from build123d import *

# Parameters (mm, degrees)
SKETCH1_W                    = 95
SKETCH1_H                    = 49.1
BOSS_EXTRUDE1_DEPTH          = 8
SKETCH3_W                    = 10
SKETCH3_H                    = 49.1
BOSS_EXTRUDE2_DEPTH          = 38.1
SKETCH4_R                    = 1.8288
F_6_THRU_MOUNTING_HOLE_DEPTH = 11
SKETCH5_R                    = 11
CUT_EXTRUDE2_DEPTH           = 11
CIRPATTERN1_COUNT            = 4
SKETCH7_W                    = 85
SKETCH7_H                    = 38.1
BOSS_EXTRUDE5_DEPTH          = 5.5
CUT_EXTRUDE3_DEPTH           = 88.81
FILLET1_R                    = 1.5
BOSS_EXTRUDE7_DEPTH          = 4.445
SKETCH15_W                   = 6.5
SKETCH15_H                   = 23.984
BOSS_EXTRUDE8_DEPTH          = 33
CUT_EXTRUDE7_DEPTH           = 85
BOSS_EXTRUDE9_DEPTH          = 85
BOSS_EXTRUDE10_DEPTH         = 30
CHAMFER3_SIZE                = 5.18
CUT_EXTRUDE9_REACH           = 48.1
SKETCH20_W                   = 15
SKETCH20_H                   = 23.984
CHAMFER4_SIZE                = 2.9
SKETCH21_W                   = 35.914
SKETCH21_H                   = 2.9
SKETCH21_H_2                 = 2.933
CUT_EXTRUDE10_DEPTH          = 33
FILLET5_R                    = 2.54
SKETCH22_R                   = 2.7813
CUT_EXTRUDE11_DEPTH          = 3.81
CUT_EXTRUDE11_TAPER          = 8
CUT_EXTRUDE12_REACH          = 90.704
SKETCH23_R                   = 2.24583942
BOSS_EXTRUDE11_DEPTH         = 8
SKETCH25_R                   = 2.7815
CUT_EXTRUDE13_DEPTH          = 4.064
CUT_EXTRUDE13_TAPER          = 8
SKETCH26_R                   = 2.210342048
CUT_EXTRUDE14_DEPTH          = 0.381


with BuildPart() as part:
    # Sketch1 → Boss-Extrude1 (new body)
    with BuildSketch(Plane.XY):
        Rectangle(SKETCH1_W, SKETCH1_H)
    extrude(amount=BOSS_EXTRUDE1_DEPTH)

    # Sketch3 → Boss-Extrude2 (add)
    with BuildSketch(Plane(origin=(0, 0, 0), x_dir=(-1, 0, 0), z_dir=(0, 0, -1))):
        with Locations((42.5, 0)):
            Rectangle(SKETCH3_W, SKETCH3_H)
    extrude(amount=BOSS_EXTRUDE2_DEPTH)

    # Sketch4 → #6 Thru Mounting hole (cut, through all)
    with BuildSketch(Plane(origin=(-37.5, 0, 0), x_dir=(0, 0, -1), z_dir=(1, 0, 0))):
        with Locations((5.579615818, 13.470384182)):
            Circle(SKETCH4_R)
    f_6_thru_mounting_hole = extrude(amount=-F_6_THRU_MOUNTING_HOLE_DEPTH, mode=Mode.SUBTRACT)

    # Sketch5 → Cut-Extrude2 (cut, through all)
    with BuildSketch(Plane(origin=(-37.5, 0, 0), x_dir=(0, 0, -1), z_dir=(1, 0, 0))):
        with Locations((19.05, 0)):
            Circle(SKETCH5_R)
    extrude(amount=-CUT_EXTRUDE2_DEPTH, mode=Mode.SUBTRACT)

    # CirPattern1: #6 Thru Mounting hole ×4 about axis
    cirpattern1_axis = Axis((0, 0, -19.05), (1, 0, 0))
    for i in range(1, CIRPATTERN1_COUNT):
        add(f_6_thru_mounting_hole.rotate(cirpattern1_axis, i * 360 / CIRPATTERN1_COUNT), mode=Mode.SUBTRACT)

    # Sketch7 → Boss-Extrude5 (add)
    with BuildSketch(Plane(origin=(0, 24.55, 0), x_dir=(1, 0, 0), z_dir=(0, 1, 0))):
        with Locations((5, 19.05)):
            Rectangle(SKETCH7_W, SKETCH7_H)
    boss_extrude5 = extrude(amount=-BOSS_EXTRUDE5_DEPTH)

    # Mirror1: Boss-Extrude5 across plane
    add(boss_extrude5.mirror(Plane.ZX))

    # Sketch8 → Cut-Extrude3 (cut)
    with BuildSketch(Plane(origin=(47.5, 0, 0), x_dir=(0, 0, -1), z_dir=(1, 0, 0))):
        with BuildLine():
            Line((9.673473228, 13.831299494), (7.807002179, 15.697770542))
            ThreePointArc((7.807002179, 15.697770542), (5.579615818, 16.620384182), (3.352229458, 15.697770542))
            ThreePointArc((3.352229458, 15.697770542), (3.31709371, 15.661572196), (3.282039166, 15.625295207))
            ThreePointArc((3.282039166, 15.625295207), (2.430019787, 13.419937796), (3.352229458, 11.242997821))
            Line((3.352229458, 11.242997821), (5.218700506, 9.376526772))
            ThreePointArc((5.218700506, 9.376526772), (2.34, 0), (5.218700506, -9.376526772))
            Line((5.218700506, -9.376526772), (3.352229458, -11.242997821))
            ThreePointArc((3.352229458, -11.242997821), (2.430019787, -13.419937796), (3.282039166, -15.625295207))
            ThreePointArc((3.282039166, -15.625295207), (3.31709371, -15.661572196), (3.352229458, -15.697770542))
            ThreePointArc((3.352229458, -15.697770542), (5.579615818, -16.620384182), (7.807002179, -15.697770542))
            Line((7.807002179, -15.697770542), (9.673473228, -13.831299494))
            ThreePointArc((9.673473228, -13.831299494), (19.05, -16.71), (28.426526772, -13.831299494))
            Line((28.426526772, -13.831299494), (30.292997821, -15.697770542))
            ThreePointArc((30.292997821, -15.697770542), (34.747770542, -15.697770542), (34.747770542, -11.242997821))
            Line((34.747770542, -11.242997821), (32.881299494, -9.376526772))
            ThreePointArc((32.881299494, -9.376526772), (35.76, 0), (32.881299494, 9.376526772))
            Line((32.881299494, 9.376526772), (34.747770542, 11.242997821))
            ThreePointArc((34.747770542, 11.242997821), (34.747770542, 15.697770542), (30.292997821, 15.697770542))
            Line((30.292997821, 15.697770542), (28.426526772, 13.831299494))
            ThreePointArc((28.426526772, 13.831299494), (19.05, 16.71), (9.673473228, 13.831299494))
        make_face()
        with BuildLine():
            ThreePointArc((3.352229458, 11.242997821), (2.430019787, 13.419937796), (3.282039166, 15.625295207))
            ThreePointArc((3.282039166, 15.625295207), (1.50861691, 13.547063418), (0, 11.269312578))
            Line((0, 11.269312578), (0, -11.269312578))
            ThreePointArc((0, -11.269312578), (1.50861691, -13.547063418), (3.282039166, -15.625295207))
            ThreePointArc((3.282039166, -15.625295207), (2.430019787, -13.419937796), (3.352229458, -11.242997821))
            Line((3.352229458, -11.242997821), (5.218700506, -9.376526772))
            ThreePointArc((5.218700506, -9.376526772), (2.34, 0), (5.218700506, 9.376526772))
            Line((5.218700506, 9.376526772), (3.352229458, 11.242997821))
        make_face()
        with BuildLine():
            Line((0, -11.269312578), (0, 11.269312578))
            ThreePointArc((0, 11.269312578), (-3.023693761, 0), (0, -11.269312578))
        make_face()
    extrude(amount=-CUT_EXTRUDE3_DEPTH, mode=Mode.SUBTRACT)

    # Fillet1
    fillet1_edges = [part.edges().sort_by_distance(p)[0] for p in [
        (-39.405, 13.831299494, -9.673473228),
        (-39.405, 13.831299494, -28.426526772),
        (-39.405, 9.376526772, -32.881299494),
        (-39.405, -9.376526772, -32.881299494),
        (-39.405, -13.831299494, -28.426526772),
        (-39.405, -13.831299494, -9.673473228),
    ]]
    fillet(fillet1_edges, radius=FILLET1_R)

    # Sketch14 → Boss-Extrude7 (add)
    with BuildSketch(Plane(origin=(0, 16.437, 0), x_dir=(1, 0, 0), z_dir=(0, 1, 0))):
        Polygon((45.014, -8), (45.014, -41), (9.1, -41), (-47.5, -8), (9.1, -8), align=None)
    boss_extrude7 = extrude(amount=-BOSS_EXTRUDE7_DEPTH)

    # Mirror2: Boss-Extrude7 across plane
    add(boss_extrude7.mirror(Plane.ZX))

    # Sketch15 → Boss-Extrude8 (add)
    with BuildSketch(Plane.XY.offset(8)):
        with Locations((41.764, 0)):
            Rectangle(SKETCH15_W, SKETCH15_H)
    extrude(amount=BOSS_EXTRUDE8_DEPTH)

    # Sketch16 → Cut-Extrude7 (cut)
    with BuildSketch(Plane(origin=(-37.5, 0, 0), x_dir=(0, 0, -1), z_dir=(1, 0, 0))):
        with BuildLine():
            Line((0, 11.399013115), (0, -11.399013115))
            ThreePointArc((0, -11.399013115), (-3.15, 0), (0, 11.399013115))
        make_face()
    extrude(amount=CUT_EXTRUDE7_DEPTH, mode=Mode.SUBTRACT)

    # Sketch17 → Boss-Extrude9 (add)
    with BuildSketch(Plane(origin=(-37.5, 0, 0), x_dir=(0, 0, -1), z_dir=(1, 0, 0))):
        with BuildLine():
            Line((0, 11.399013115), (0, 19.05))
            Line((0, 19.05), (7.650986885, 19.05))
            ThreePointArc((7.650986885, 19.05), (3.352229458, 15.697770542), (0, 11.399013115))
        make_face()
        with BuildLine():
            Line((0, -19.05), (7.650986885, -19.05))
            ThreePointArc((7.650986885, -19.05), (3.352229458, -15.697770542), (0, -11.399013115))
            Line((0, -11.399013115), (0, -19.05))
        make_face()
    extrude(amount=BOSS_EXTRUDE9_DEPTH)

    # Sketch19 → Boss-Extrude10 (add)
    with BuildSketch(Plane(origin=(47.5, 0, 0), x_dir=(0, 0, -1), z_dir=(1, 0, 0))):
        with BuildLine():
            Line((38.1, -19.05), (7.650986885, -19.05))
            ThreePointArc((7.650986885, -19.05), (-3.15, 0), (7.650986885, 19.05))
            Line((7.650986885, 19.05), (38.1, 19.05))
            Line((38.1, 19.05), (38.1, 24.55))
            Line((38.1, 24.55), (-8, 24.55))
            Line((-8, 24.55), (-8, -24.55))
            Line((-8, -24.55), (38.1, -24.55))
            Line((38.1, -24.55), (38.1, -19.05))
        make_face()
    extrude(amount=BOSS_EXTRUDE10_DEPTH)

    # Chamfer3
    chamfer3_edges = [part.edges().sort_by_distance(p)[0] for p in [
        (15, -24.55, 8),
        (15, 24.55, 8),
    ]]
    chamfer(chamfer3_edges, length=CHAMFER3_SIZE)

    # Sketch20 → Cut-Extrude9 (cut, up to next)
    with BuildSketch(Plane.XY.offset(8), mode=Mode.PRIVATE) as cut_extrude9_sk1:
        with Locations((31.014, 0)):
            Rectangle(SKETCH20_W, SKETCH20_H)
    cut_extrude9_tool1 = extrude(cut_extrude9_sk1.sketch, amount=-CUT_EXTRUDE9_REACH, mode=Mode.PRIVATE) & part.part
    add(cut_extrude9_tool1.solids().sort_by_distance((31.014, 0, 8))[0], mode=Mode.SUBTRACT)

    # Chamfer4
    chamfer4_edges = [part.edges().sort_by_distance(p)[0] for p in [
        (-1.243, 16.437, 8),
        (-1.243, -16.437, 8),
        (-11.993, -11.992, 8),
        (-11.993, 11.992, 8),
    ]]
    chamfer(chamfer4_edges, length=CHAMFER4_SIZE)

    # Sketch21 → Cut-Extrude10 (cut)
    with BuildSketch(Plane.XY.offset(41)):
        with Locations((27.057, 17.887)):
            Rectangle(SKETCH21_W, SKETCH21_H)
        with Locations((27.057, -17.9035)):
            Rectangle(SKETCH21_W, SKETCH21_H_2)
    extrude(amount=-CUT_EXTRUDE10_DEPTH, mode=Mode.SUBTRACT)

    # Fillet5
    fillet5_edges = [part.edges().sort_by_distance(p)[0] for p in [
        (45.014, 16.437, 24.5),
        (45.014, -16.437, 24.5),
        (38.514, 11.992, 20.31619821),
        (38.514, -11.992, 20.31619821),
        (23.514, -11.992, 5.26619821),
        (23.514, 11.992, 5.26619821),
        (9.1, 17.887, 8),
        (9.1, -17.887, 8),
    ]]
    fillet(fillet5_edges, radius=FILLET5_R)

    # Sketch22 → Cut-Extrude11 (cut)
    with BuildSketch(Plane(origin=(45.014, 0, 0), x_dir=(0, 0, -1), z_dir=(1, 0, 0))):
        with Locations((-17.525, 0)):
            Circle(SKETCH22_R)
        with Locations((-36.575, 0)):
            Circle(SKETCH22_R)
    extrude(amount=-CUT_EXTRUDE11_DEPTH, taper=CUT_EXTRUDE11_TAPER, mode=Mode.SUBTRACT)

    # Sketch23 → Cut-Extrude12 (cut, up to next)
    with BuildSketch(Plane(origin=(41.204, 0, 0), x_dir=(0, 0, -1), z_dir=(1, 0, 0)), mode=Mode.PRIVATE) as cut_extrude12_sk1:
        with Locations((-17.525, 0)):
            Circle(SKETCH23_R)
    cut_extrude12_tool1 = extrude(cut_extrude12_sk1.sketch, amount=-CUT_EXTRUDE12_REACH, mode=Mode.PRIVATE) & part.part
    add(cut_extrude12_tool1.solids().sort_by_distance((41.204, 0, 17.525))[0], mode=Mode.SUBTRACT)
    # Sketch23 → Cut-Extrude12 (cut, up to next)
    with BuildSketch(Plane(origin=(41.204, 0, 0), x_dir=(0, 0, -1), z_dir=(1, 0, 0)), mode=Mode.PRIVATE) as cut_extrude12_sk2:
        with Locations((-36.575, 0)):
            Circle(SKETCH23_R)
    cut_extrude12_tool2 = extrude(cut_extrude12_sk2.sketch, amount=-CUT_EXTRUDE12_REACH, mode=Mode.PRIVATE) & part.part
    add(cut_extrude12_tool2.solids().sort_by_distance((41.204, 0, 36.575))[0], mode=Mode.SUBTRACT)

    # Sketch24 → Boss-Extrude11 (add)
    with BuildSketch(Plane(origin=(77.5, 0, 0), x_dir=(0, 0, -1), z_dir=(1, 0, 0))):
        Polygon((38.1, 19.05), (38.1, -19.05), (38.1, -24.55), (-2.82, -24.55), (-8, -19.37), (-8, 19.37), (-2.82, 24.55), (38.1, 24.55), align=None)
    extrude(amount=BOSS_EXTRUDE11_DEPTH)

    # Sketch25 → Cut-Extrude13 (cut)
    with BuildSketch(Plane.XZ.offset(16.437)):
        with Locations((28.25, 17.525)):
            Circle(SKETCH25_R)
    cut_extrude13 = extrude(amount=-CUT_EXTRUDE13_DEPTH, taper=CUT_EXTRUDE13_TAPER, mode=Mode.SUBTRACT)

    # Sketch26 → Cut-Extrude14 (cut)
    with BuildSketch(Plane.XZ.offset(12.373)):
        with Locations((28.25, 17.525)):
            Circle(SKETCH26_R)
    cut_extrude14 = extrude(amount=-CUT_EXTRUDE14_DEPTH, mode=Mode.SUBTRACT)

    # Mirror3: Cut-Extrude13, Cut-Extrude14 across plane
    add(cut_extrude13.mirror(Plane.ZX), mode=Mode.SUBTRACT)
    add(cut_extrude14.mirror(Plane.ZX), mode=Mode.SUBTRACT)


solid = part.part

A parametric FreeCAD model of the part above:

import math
import FreeCAD as App
import Part
import Sketcher


def edges_at(feature, points):
    """Names of the edges that pass closest to the given points."""
    edges = feature.Shape.Edges
    near = lambda p: min(range(len(edges)), key=lambda i: edges[i].distToShape(Part.Vertex(*p))[0])
    return sorted({f"Edge{near(p) + 1}" for p in points})


def add_polygon(sketch, points):
    """Adds a closed chain of lines whose ends are joined by coincident constraints."""
    first, n = sketch.GeometryCount, len(points)
    for a, b in zip(points, points[1:] + points[:1]):
        sketch.addGeometry(Part.LineSegment(App.Vector(*a, 0), App.Vector(*b, 0)), False)
    for i in range(n):
        sketch.addConstraint(Sketcher.Constraint("Coincident", first + i, 2, first + (i + 1) % n, 1))

doc = App.newDocument("Part")
body = doc.addObject("PartDesign::Body", "Body")

# Sketch on XY plane
sketch1 = body.newObject("Sketcher::SketchObject", "Sketch")
sketch1.AttachmentSupport = (doc.getObject("XY_Plane"), [""])
sketch1.MapMode = "FlatFace"
add_polygon(sketch1, [(-48, 25), (-48, -25), (48, -25), (48, 25)])  # lines 0-3
sketch1.addConstraint(Sketcher.Constraint("Vertical", 0))
sketch1.addConstraint(Sketcher.Constraint("Horizontal", 1))
sketch1.addConstraint(Sketcher.Constraint("Vertical", 2))
sketch1.addConstraint(Sketcher.Constraint("Horizontal", 3))
sketch1.addConstraint(Sketcher.Constraint("Symmetric", 0, 2, 2, 2, -1, 1))
sketch1.addConstraint(Sketcher.Constraint("DistanceX", 1, 1, 1, 2, 95.0))
sketch1.addConstraint(Sketcher.Constraint("DistanceY", 0, 2, 0, 1, 49.1))
pad1 = body.newObject("PartDesign::Pad", "Pad")
pad1.Profile = sketch1
pad1.Length = 8

# Sketch on XY plane
sketch2 = body.newObject("Sketcher::SketchObject", "Sketch001")
sketch2.AttachmentSupport = (doc.getObject("XY_Plane"), [""])
sketch2.MapMode = "FlatFace"
add_polygon(sketch2, [(-38, 25), (-38, -25), (-48, -25), (-48, 25)])  # lines 0-3
sketch2.addConstraint(Sketcher.Constraint("Vertical", 0))
sketch2.addConstraint(Sketcher.Constraint("Horizontal", 1))
sketch2.addConstraint(Sketcher.Constraint("Vertical", 2))
sketch2.addConstraint(Sketcher.Constraint("Horizontal", 3))
sketch2.addConstraint(Sketcher.Constraint("DistanceX", 1, 2, 1, 1, 10.0))
sketch2.addConstraint(Sketcher.Constraint("DistanceY", 0, 2, 0, 1, 49.1))
sketch2.addConstraint(Sketcher.Constraint("DistanceX", 0, 2, -1, 1, 37.5))
sketch2.addConstraint(Sketcher.Constraint("DistanceY", 0, 2, -1, 1, 24.55))
pad2 = body.newObject("PartDesign::Pad", "Pad001")
pad2.Profile = sketch2
pad2.Length = 38.1
pad2.Reversed = True

# Sketch on YZ plane
sketch3 = body.newObject("Sketcher::SketchObject", "Sketch002")
sketch3.AttachmentSupport = (doc.getObject("YZ_Plane"), [""])
sketch3.MapMode = "FlatFace"
sketch3.AttachmentOffset = App.Placement(App.Vector(0, 0, -37.5), App.Rotation())
sketch3.addGeometry(Part.Circle(App.Vector(13.5, -5.6, 0), App.Vector(0, 0, 1), 1.8), False)
sketch3.addConstraint(Sketcher.Constraint("Diameter", 0, 3.6576))
sketch3.addConstraint(Sketcher.Constraint("DistanceX", -1, 1, 0, 3, 13.470384))
sketch3.addConstraint(Sketcher.Constraint("DistanceY", 0, 3, -1, 1, 5.579616))
pocket1 = body.newObject("PartDesign::Pocket", "Pocket")
pocket1.Profile = sketch3
pocket1.Type = "ThroughAll"

# Sketch on YZ plane
sketch4 = body.newObject("Sketcher::SketchObject", "Sketch003")
sketch4.AttachmentSupport = (doc.getObject("YZ_Plane"), [""])
sketch4.MapMode = "FlatFace"
sketch4.AttachmentOffset = App.Placement(App.Vector(0, 0, -37.5), App.Rotation())
sketch4.addGeometry(Part.Circle(App.Vector(0, -19, 0), App.Vector(0, 0, 1), 11), False)
sketch4.addConstraint(Sketcher.Constraint("PointOnObject", 0, 3, -2))
sketch4.addConstraint(Sketcher.Constraint("Diameter", 0, 22.0))
sketch4.addConstraint(Sketcher.Constraint("DistanceY", 0, 3, -1, 1, 19.05))
pocket2 = body.newObject("PartDesign::Pocket", "Pocket001")
pocket2.Profile = sketch4
pocket2.Type = "ThroughAll"
doc.recompute()

datumline = body.newObject("PartDesign::Line", "DatumLine")
datumline.Placement = App.Placement(App.Vector(0, 0, -19.05), App.Rotation(App.Vector(0, 0, 1), App.Vector(1, 0, 0)))
polarpattern = body.newObject("PartDesign::PolarPattern", "PolarPattern")
polarpattern.Originals = [pocket1]
polarpattern.Axis = (datumline, [""])
polarpattern.Angle = 360
polarpattern.Occurrences = 4
body.Tip = polarpattern

# Sketch on XZ plane
sketch5 = body.newObject("Sketcher::SketchObject", "Sketch004")
sketch5.AttachmentSupport = (doc.getObject("XZ_Plane"), [""])
sketch5.MapMode = "FlatFace"
sketch5.AttachmentOffset = App.Placement(App.Vector(0, 0, -24.55), App.Rotation())
add_polygon(sketch5, [(-38, -38), (-38, 0), (48, 0), (48, -38)])  # lines 0-3
sketch5.addConstraint(Sketcher.Constraint("Vertical", 0))
sketch5.addConstraint(Sketcher.Constraint("Horizontal", 1))
sketch5.addConstraint(Sketcher.Constraint("Vertical", 2))
sketch5.addConstraint(Sketcher.Constraint("Horizontal", 3))
sketch5.addConstraint(Sketcher.Constraint("PointOnObject", 0, 2, -1))
sketch5.addConstraint(Sketcher.Constraint("DistanceX", 1, 1, 1, 2, 85.0))
sketch5.addConstraint(Sketcher.Constraint("DistanceY", 0, 1, 0, 2, 38.1))
sketch5.addConstraint(Sketcher.Constraint("DistanceX", 0, 2, -1, 1, 37.5))
pad3 = body.newObject("PartDesign::Pad", "Pad002")
pad3.Profile = sketch5
pad3.Length = 5.5
doc.recompute()

mirrored = body.newObject("PartDesign::Mirrored", "Mirrored")
mirrored.Originals = [pad3]
mirrored.MirrorPlane = (doc.getObject("XZ_Plane"), [""])
body.Tip = mirrored

# Sketch on YZ plane
sketch6 = body.newObject("Sketcher::SketchObject", "Sketch005")
sketch6.AttachmentSupport = (doc.getObject("YZ_Plane"), [""])
sketch6.MapMode = "FlatFace"
sketch6.AttachmentOffset = App.Placement(App.Vector(0, 0, 47.5), App.Rotation())
sketch6.addGeometry(Part.LineSegment(App.Vector(13.83, -9.67, 0), App.Vector(15.7, -7.81, 0)), False)
sketch6.addGeometry(Part.ArcOfCircle(Part.Circle(App.Vector(13.47, -5.58, 0), App.Vector(0, 0, 1), 3.15), math.radians(-45), math.radians(45)), False)
sketch6.addGeometry(Part.ArcOfCircle(Part.Circle(App.Vector(0, -19.49, 0), App.Vector(0, 0, 1), 22.51), math.radians(45.79), math.radians(46.05)), False)
sketch6.addGeometry(Part.ArcOfCircle(Part.Circle(App.Vector(0, -19.49, 0), App.Vector(0, 0, 1), 22.51), math.radians(46.05), math.radians(59.96)), False)
sketch6.addGeometry(Part.ArcOfCircle(Part.Circle(App.Vector(0, -19.49, 0), App.Vector(0, 0, 1), 22.51), math.radians(60), math.radians(120)), False)
sketch6.addGeometry(Part.ArcOfCircle(Part.Circle(App.Vector(0, -19.49, 0), App.Vector(0, 0, 1), 22.51), math.radians(120.04), math.radians(133.95)), False)
sketch6.addGeometry(Part.ArcOfCircle(Part.Circle(App.Vector(0, -19.49, 0), App.Vector(0, 0, 1), 22.51), math.radians(133.95), math.radians(134.21)), False)
sketch6.addGeometry(Part.ArcOfCircle(Part.Circle(App.Vector(-13.47, -5.58, 0), App.Vector(0, 0, 1), 3.15), math.radians(135), math.radians(225)), False)
sketch6.addGeometry(Part.LineSegment(App.Vector(-15.7, -7.81, 0), App.Vector(-13.83, -9.67, 0)), False)
sketch6.addGeometry(Part.ArcOfCircle(Part.Circle(App.Vector(0, -19.05, 0), App.Vector(0, 0, 1), 16.71), math.radians(146), math.radians(214)), False)
sketch6.addGeometry(Part.LineSegment(App.Vector(-13.83, -28.43, 0), App.Vector(-15.7, -30.29, 0)), False)
sketch6.addGeometry(Part.ArcOfCircle(Part.Circle(App.Vector(-13.47, -32.52, 0), App.Vector(0, 0, 1), 3.15), math.radians(135), math.radians(315)), False)
sketch6.addGeometry(Part.LineSegment(App.Vector(-11.24, -34.75, 0), App.Vector(-9.38, -32.88, 0)), False)
sketch6.addGeometry(Part.ArcOfCircle(Part.Circle(App.Vector(0, -19.05, 0), App.Vector(0, 0, 1), 16.71), math.radians(-124), math.radians(-56)), False)
sketch6.addGeometry(Part.LineSegment(App.Vector(9.38, -32.88, 0), App.Vector(11.24, -34.75, 0)), False)
sketch6.addGeometry(Part.ArcOfCircle(Part.Circle(App.Vector(13.47, -32.52, 0), App.Vector(0, 0, 1), 3.15), math.radians(-135), math.radians(45)), False)
sketch6.addGeometry(Part.LineSegment(App.Vector(15.7, -30.29, 0), App.Vector(13.83, -28.43, 0)), False)
sketch6.addGeometry(Part.ArcOfCircle(Part.Circle(App.Vector(0, -19.05, 0), App.Vector(0, 0, 1), 16.71), math.radians(-34), math.radians(34)), False)
sketch6.addConstraint(Sketcher.Constraint("Tangent", 0, 2, 1, 1))
sketch6.addConstraint(Sketcher.Constraint("Coincident", 1, 2, 2, 1))
sketch6.addConstraint(Sketcher.Constraint("Tangent", 2, 2, 3, 1))
sketch6.addConstraint(Sketcher.Constraint("Tangent", 3, 2, 4, 1))
sketch6.addConstraint(Sketcher.Constraint("Tangent", 4, 2, 5, 1))
sketch6.addConstraint(Sketcher.Constraint("Tangent", 5, 2, 6, 1))
sketch6.addConstraint(Sketcher.Constraint("Coincident", 6, 2, 7, 1))
sketch6.addConstraint(Sketcher.Constraint("Tangent", 7, 2, 8, 1))
sketch6.addConstraint(Sketcher.Constraint("Coincident", 8, 2, 9, 1))
sketch6.addConstraint(Sketcher.Constraint("Coincident", 9, 2, 10, 1))
sketch6.addConstraint(Sketcher.Constraint("Tangent", 10, 2, 11, 1))
sketch6.addConstraint(Sketcher.Constraint("Tangent", 11, 2, 12, 1))
sketch6.addConstraint(Sketcher.Constraint("Coincident", 12, 2, 13, 1))
sketch6.addConstraint(Sketcher.Constraint("Coincident", 13, 2, 14, 1))
sketch6.addConstraint(Sketcher.Constraint("Tangent", 14, 2, 15, 1))
sketch6.addConstraint(Sketcher.Constraint("Tangent", 15, 2, 16, 1))
sketch6.addConstraint(Sketcher.Constraint("Coincident", 16, 2, 17, 1))
sketch6.addConstraint(Sketcher.Constraint("Coincident", 17, 2, 0, 1))
sketch6.addConstraint(Sketcher.Constraint("Coincident", 5, 3, 3, 3))
sketch6.addConstraint(Sketcher.Constraint("Coincident", 13, 3, 9, 3))
sketch6.addConstraint(Sketcher.Constraint("Coincident", 17, 3, 9, 3))
sketch6.addConstraint(Sketcher.Constraint("Equal", 2, 6))
sketch6.addConstraint(Sketcher.Constraint("Equal", 1, 7))
sketch6.addConstraint(Sketcher.Constraint("Equal", 7, 11))
sketch6.addConstraint(Sketcher.Constraint("Equal", 9, 13))
sketch6.addConstraint(Sketcher.Constraint("Equal", 11, 15))
sketch6.addConstraint(Sketcher.Constraint("Equal", 13, 17))
sketch6.addConstraint(Sketcher.Constraint("Symmetric", 3, 2, 4, 2, -1, 1))
sketch6.addConstraint(Sketcher.Constraint("Symmetric", 1, 3, 7, 3, -2))
sketch6.addConstraint(Sketcher.Constraint("Symmetric", 11, 3, 15, 3, -2))
sketch6.addConstraint(Sketcher.Constraint("Symmetric", 2, 2, 5, 2, -2))
sketch6.addConstraint(Sketcher.Constraint("Symmetric", 12, 2, 13, 2, -2))
sketch6.addConstraint(Sketcher.Constraint("Perpendicular", 0, 8))
sketch6.addConstraint(Sketcher.Constraint("Perpendicular", 8, 10))
sketch6.addConstraint(Sketcher.Constraint("Parallel", 10, 12))
sketch6.addConstraint(Sketcher.Constraint("Perpendicular", 12, 14))
sketch6.addConstraint(Sketcher.Constraint("Parallel", 14, 16))
sketch6.addConstraint(Sketcher.Constraint("Vertical", 7, 3, 11, 3))
sketch6.addConstraint(Sketcher.Constraint("Vertical", 0, 2, 1, 2))
sketch6.addConstraint(Sketcher.Constraint("Vertical", 8, 2, 9, 2))
sketch6.addConstraint(Sketcher.Constraint("Equal", 10, 12))
sketch6.addConstraint(Sketcher.Constraint("Radius", 1, 3.15))
sketch6.addConstraint(Sketcher.Constraint("Radius", 9, 16.71))
sketch6.addConstraint(Sketcher.Constraint("DistanceY", 9, 3, -1, 1, 19.05))
sketch6.addConstraint(Sketcher.Constraint("Radius", 2, 22.51207))
sketch6.addConstraint(Sketcher.Constraint("Radius", 3, 22.512222))
sketch6.addConstraint(Sketcher.Constraint("DistanceY", 9, 2, 3, 3, 8.937999))
sketch6.addConstraint(Sketcher.Constraint("DistanceY", 2, 2, -1, 1, 3.282039))
pocket3 = body.newObject("PartDesign::Pocket", "Pocket002")
pocket3.Profile = sketch6
pocket3.Length = 88.81
doc.recompute()

fillet = body.newObject("PartDesign::Fillet", "Fillet")
fillet.Base = (pocket3, edges_at(pocket3, [
    (-39.405, 13.831, -9.673),
    (-39.405, 13.831, -28.427),
    (-39.405, 9.377, -32.881),
    (-39.405, -9.377, -32.881),
    (-39.405, -13.831, -28.427),
    (-39.405, -13.831, -9.673),
]))
fillet.Radius = 1.5

# Sketch on XZ plane
sketch7 = body.newObject("Sketcher::SketchObject", "Sketch006")
sketch7.AttachmentSupport = (doc.getObject("XZ_Plane"), [""])
sketch7.MapMode = "FlatFace"
sketch7.AttachmentOffset = App.Placement(App.Vector(0, 0, -16.437), App.Rotation())
add_polygon(sketch7, [(45, 41), (45, 8), (-48, 8), (9, 41)])  # lines 0-3
sketch7.addConstraint(Sketcher.Constraint("Vertical", 0))
sketch7.addConstraint(Sketcher.Constraint("Horizontal", 1))
sketch7.addConstraint(Sketcher.Constraint("Horizontal", 3))
sketch7.addConstraint(Sketcher.Constraint("DistanceY", 0, 2, 0, 1, 33.0))
sketch7.addConstraint(Sketcher.Constraint("DistanceY", -1, 1, 0, 2, 8.0))
sketch7.addConstraint(Sketcher.Constraint("DistanceX", 1, 2, -1, 1, 47.5))
sketch7.addConstraint(Sketcher.Constraint("DistanceX", -1, 1, 2, 2, 9.1))
sketch7.addConstraint(Sketcher.Constraint("DistanceX", 1, 2, 1, 1, 92.514))
pad4 = body.newObject("PartDesign::Pad", "Pad003")
pad4.Profile = sketch7
pad4.Length = 4.445
doc.recompute()

mirrored2 = body.newObject("PartDesign::Mirrored", "Mirrored001")
mirrored2.Originals = [pad4]
mirrored2.MirrorPlane = (doc.getObject("XZ_Plane"), [""])
body.Tip = mirrored2

# Sketch on XY plane
sketch8 = body.newObject("Sketcher::SketchObject", "Sketch007")
sketch8.AttachmentSupport = (doc.getObject("XY_Plane"), [""])
sketch8.MapMode = "FlatFace"
sketch8.AttachmentOffset = App.Placement(App.Vector(0, 0, 8), App.Rotation())
add_polygon(sketch8, [(39, 12), (39, -12), (45, -12), (45, 12)])  # lines 0-3
sketch8.addConstraint(Sketcher.Constraint("Vertical", 0))
sketch8.addConstraint(Sketcher.Constraint("Horizontal", 1))
sketch8.addConstraint(Sketcher.Constraint("Vertical", 2))
sketch8.addConstraint(Sketcher.Constraint("Horizontal", 3))
sketch8.addConstraint(Sketcher.Constraint("DistanceX", 1, 1, 1, 2, 6.5))
sketch8.addConstraint(Sketcher.Constraint("DistanceY", 0, 2, 0, 1, 23.984))
sketch8.addConstraint(Sketcher.Constraint("DistanceX", -1, 1, 0, 2, 38.514))
sketch8.addConstraint(Sketcher.Constraint("DistanceY", 0, 2, -1, 1, 11.992))
pad5 = body.newObject("PartDesign::Pad", "Pad004")
pad5.Profile = sketch8
pad5.Length = 33

# Sketch on YZ plane
sketch9 = body.newObject("Sketcher::SketchObject", "Sketch008")
sketch9.AttachmentSupport = (doc.getObject("YZ_Plane"), [""])
sketch9.MapMode = "FlatFace"
sketch9.AttachmentOffset = App.Placement(App.Vector(0, 0, -37.5), App.Rotation())
sketch9.addGeometry(Part.LineSegment(App.Vector(-11, 0, 0), App.Vector(11, 0, 0)), False)
sketch9.addGeometry(Part.ArcOfCircle(Part.Circle(App.Vector(0, -19, 0), App.Vector(0, 0, 1), 22), math.radians(59), math.radians(121)), False)
sketch9.addConstraint(Sketcher.Constraint("Coincident", 0, 1, 1, 2))
sketch9.addConstraint(Sketcher.Constraint("Coincident", 1, 1, 0, 2))
sketch9.addConstraint(Sketcher.Constraint("Horizontal", 0))
sketch9.addConstraint(Sketcher.Constraint("Symmetric", 0, 1, 1, 1, -1, 1))
sketch9.addConstraint(Sketcher.Constraint("Radius", 1, 22.2))
sketch9.addConstraint(Sketcher.Constraint("DistanceY", 1, 3, -1, 1, 19.05))
pocket4 = body.newObject("PartDesign::Pocket", "Pocket003")
pocket4.Profile = sketch9
pocket4.Length = 85
pocket4.Reversed = True

# Sketch on YZ plane
sketch10 = body.newObject("Sketcher::SketchObject", "Sketch009")
sketch10.AttachmentSupport = (doc.getObject("YZ_Plane"), [""])
sketch10.MapMode = "FlatFace"
sketch10.AttachmentOffset = App.Placement(App.Vector(0, 0, -37.5), App.Rotation())
sketch10.addGeometry(Part.LineSegment(App.Vector(19, 0, 0), App.Vector(11, 0, 0)), False)
sketch10.addGeometry(Part.ArcOfCircle(Part.Circle(App.Vector(0, -19, 0), App.Vector(0, 0, 1), 22), math.radians(31), math.radians(59)), False)
sketch10.addGeometry(Part.LineSegment(App.Vector(19, -8, 0), App.Vector(19, 0, 0)), False)
sketch10.addGeometry(Part.LineSegment(App.Vector(-19, 0, 0), App.Vector(-19, -8, 0)), False)
sketch10.addGeometry(Part.ArcOfCircle(Part.Circle(App.Vector(0, -19, 0), App.Vector(0, 0, 1), 22), math.radians(121), math.radians(149)), False)
sketch10.addGeometry(Part.LineSegment(App.Vector(-11, 0, 0), App.Vector(-19, 0, 0)), False)
sketch10.addConstraint(Sketcher.Constraint("Coincident", 0, 2, 1, 2))
sketch10.addConstraint(Sketcher.Constraint("Coincident", 1, 1, 2, 1))
sketch10.addConstraint(Sketcher.Constraint("Coincident", 2, 2, 0, 1))
sketch10.addConstraint(Sketcher.Constraint("Coincident", 3, 2, 4, 2))
sketch10.addConstraint(Sketcher.Constraint("Coincident", 4, 1, 5, 1))
sketch10.addConstraint(Sketcher.Constraint("Coincident", 5, 2, 3, 1))
sketch10.addConstraint(Sketcher.Constraint("Horizontal", 0))
sketch10.addConstraint(Sketcher.Constraint("Vertical", 2))
sketch10.addConstraint(Sketcher.Constraint("Vertical", 3))
sketch10.addConstraint(Sketcher.Constraint("Horizontal", 5))
sketch10.addConstraint(Sketcher.Constraint("Coincident", 4, 3, 1, 3))
sketch10.addConstraint(Sketcher.Constraint("Equal", 1, 4))
sketch10.addConstraint(Sketcher.Constraint("Symmetric", 0, 2, 4, 1, -1, 1))
sketch10.addConstraint(Sketcher.Constraint("Symmetric", 1, 1, 3, 2, -2))
sketch10.addConstraint(Sketcher.Constraint("Equal", 5, 2))
sketch10.addConstraint(Sketcher.Constraint("Radius", 1, 22.2))
sketch10.addConstraint(Sketcher.Constraint("DistanceX", 3, 2, 1, 1, 38.1))
pad6 = body.newObject("PartDesign::Pad", "Pad005")
pad6.Profile = sketch10
pad6.Length = 85

# Sketch on YZ plane
sketch11 = body.newObject("Sketcher::SketchObject", "Sketch010")
sketch11.AttachmentSupport = (doc.getObject("YZ_Plane"), [""])
sketch11.MapMode = "FlatFace"
sketch11.AttachmentOffset = App.Placement(App.Vector(0, 0, 47.5), App.Rotation())
sketch11.addGeometry(Part.LineSegment(App.Vector(-19, -38, 0), App.Vector(-19, -8, 0)), False)
sketch11.addGeometry(Part.ArcOfCircle(Part.Circle(App.Vector(0, -19, 0), App.Vector(0, 0, 1), 22), math.radians(31), math.radians(149)), False)
sketch11.addGeometry(Part.LineSegment(App.Vector(19, -8, 0), App.Vector(19, -38, 0)), False)
sketch11.addGeometry(Part.LineSegment(App.Vector(19, -38, 0), App.Vector(25, -38, 0)), False)
sketch11.addGeometry(Part.LineSegment(App.Vector(25, -38, 0), App.Vector(25, 8, 0)), False)
sketch11.addGeometry(Part.LineSegment(App.Vector(25, 8, 0), App.Vector(-25, 8, 0)), False)
sketch11.addGeometry(Part.LineSegment(App.Vector(-25, 8, 0), App.Vector(-25, -38, 0)), False)
sketch11.addGeometry(Part.LineSegment(App.Vector(-25, -38, 0), App.Vector(-19, -38, 0)), False)
sketch11.addConstraint(Sketcher.Constraint("Coincident", 0, 2, 1, 2))
sketch11.addConstraint(Sketcher.Constraint("Coincident", 1, 1, 2, 1))
sketch11.addConstraint(Sketcher.Constraint("Coincident", 2, 2, 3, 1))
sketch11.addConstraint(Sketcher.Constraint("Coincident", 3, 2, 4, 1))
sketch11.addConstraint(Sketcher.Constraint("Coincident", 4, 2, 5, 1))
sketch11.addConstraint(Sketcher.Constraint("Coincident", 5, 2, 6, 1))
sketch11.addConstraint(Sketcher.Constraint("Coincident", 6, 2, 7, 1))
sketch11.addConstraint(Sketcher.Constraint("Coincident", 7, 2, 0, 1))
sketch11.addConstraint(Sketcher.Constraint("Vertical", 0))
sketch11.addConstraint(Sketcher.Constraint("Vertical", 2))
sketch11.addConstraint(Sketcher.Constraint("Horizontal", 3))
sketch11.addConstraint(Sketcher.Constraint("Vertical", 4))
sketch11.addConstraint(Sketcher.Constraint("Horizontal", 5))
sketch11.addConstraint(Sketcher.Constraint("Vertical", 6))
sketch11.addConstraint(Sketcher.Constraint("Horizontal", 7))
sketch11.addConstraint(Sketcher.Constraint("Symmetric", 0, 2, 1, 1, -2))
sketch11.addConstraint(Sketcher.Constraint("Symmetric", 3, 2, 6, 2, -2))
sketch11.addConstraint(Sketcher.Constraint("Radius", 1, 22.2))
sketch11.addConstraint(Sketcher.Constraint("DistanceX", 3, 1, 3, 2, 5.5))
sketch11.addConstraint(Sketcher.Constraint("DistanceX", 5, 2, 5, 1, 49.1))
sketch11.addConstraint(Sketcher.Constraint("DistanceY", 4, 1, 4, 2, 46.1))
sketch11.addConstraint(Sketcher.Constraint("DistanceY", -1, 1, 4, 2, 8.0))
sketch11.addConstraint(Sketcher.Constraint("DistanceY", 1, 3, -1, 1, 19.05))
pad7 = body.newObject("PartDesign::Pad", "Pad006")
pad7.Profile = sketch11
pad7.Length = 30
doc.recompute()

chamfer = body.newObject("PartDesign::Chamfer", "Chamfer")
chamfer.Base = (pad7, edges_at(pad7, [(15, -24.55, 8), (15, 24.55, 8)]))
chamfer.Size = 5.18

# Sketch on XY plane
sketch12 = body.newObject("Sketcher::SketchObject", "Sketch011")
sketch12.AttachmentSupport = (doc.getObject("XY_Plane"), [""])
sketch12.MapMode = "FlatFace"
sketch12.AttachmentOffset = App.Placement(App.Vector(0, 0, 8), App.Rotation())
add_polygon(sketch12, [(24, 12), (24, -12), (39, -12), (39, 12)])  # lines 0-3
sketch12.addConstraint(Sketcher.Constraint("Vertical", 0))
sketch12.addConstraint(Sketcher.Constraint("Horizontal", 1))
sketch12.addConstraint(Sketcher.Constraint("Vertical", 2))
sketch12.addConstraint(Sketcher.Constraint("Horizontal", 3))
sketch12.addConstraint(Sketcher.Constraint("DistanceX", 1, 1, 1, 2, 15.0))
sketch12.addConstraint(Sketcher.Constraint("DistanceY", 0, 2, 0, 1, 23.984))
sketch12.addConstraint(Sketcher.Constraint("DistanceX", -1, 1, 0, 2, 23.514))
sketch12.addConstraint(Sketcher.Constraint("DistanceY", 0, 2, -1, 1, 11.992))
pocket5 = body.newObject("PartDesign::Pocket", "Pocket004")
pocket5.Profile = sketch12
pocket5.Type = "UpToFirst"
doc.recompute()

chamfer2 = body.newObject("PartDesign::Chamfer", "Chamfer001")
chamfer2.Base = (pocket5, edges_at(pocket5, [
    (-1.243, 16.437, 8),
    (-1.243, -16.437, 8),
    (-11.993, -11.992, 8),
    (-11.993, 11.992, 8),
]))
chamfer2.Size = 2.9

# Sketch on XY plane
sketch13 = body.newObject("Sketcher::SketchObject", "Sketch012")
sketch13.AttachmentSupport = (doc.getObject("XY_Plane"), [""])
sketch13.MapMode = "FlatFace"
sketch13.AttachmentOffset = App.Placement(App.Vector(0, 0, 41), App.Rotation())
add_polygon(sketch13, [(9.1, 19.3), (9.1, 16.4), (45, 16.4), (45, 19.3)])  # lines 0-3
add_polygon(sketch13, [(9.1, -16.4), (9.1, -19.4), (45, -19.4), (45, -16.4)])  # lines 4-7
sketch13.addConstraint(Sketcher.Constraint("Vertical", 0))
sketch13.addConstraint(Sketcher.Constraint("Horizontal", 1))
sketch13.addConstraint(Sketcher.Constraint("Vertical", 2))
sketch13.addConstraint(Sketcher.Constraint("Horizontal", 3))
sketch13.addConstraint(Sketcher.Constraint("Vertical", 4))
sketch13.addConstraint(Sketcher.Constraint("Horizontal", 5))
sketch13.addConstraint(Sketcher.Constraint("Vertical", 6))
sketch13.addConstraint(Sketcher.Constraint("Horizontal", 7))
sketch13.addConstraint(Sketcher.Constraint("Symmetric", 1, 2, 6, 2, -1))
sketch13.addConstraint(Sketcher.Constraint("Vertical", 3, 2, 4, 2))
sketch13.addConstraint(Sketcher.Constraint("DistanceY", 0, 2, 0, 1, 2.9))
sketch13.addConstraint(Sketcher.Constraint("DistanceX", -1, 1, 0, 2, 9.1))
sketch13.addConstraint(Sketcher.Constraint("DistanceX", 1, 1, 1, 2, 35.914))
sketch13.addConstraint(Sketcher.Constraint("DistanceY", 4, 2, 4, 1, 2.933))
sketch13.addConstraint(Sketcher.Constraint("DistanceY", 4, 2, -1, 1, 19.37))
pocket6 = body.newObject("PartDesign::Pocket", "Pocket005")
pocket6.Profile = sketch13
pocket6.Length = 33
doc.recompute()

fillet2 = body.newObject("PartDesign::Fillet", "Fillet001")
fillet2.Base = (pocket6, edges_at(pocket6, [
    (45.014, 16.437, 24.5),
    (45.014, -16.437, 24.5),
    (38.514, 11.992, 20.316),
    (38.514, -11.992, 20.316),
    (23.514, -11.992, 5.266),
    (23.514, 11.992, 5.266),
    (9.1, 17.887, 8),
    (9.1, -17.887, 8),
]))
fillet2.Radius = 2.54

# Sketch on YZ plane
sketch14 = body.newObject("Sketcher::SketchObject", "Sketch013")
sketch14.AttachmentSupport = (doc.getObject("YZ_Plane"), [""])
sketch14.MapMode = "FlatFace"
sketch14.AttachmentOffset = App.Placement(App.Vector(0, 0, 45.014), App.Rotation())
sketch14.addGeometry(Part.Circle(App.Vector(0, 17.5, 0), App.Vector(0, 0, 1), 2.8), False)
sketch14.addGeometry(Part.Circle(App.Vector(0, 36.6, 0), App.Vector(0, 0, 1), 2.8), False)
sketch14.addConstraint(Sketcher.Constraint("Equal", 0, 1))
sketch14.addConstraint(Sketcher.Constraint("PointOnObject", 0, 3, -2))
sketch14.addConstraint(Sketcher.Constraint("PointOnObject", 1, 3, -2))
sketch14.addConstraint(Sketcher.Constraint("Diameter", 0, 5.5626))
sketch14.addConstraint(Sketcher.Constraint("DistanceY", 0, 3, 1, 3, 19.05))
sketch14.addConstraint(Sketcher.Constraint("DistanceY", -1, 1, 0, 3, 17.525))
pocket7 = body.newObject("PartDesign::Pocket", "Pocket006")
pocket7.Profile = sketch14
pocket7.Length = 3.81
pocket7.TaperAngle = -8

# Sketch on YZ plane
sketch15 = body.newObject("Sketcher::SketchObject", "Sketch014")
sketch15.AttachmentSupport = (doc.getObject("YZ_Plane"), [""])
sketch15.MapMode = "FlatFace"
sketch15.AttachmentOffset = App.Placement(App.Vector(0, 0, 41.204), App.Rotation())
sketch15.addGeometry(Part.Circle(App.Vector(0, 17.5, 0), App.Vector(0, 0, 1), 2.2), False)
sketch15.addConstraint(Sketcher.Constraint("PointOnObject", 0, 3, -2))
sketch15.addConstraint(Sketcher.Constraint("Diameter", 0, 4.491679))
sketch15.addConstraint(Sketcher.Constraint("DistanceY", -1, 1, 0, 3, 17.525))
pocket8 = body.newObject("PartDesign::Pocket", "Pocket007")
pocket8.Profile = sketch15
pocket8.Type = "UpToFirst"

# Sketch on YZ plane
sketch16 = body.newObject("Sketcher::SketchObject", "Sketch015")
sketch16.AttachmentSupport = (doc.getObject("YZ_Plane"), [""])
sketch16.MapMode = "FlatFace"
sketch16.AttachmentOffset = App.Placement(App.Vector(0, 0, 41.204), App.Rotation())
sketch16.addGeometry(Part.Circle(App.Vector(0, 36.6, 0), App.Vector(0, 0, 1), 2.2), False)
sketch16.addConstraint(Sketcher.Constraint("PointOnObject", 0, 3, -2))
sketch16.addConstraint(Sketcher.Constraint("Diameter", 0, 4.491679))
sketch16.addConstraint(Sketcher.Constraint("DistanceY", -1, 1, 0, 3, 36.575))
pocket9 = body.newObject("PartDesign::Pocket", "Pocket008")
pocket9.Profile = sketch16
pocket9.Type = "UpToFirst"

# Sketch on YZ plane
sketch17 = body.newObject("Sketcher::SketchObject", "Sketch016")
sketch17.AttachmentSupport = (doc.getObject("YZ_Plane"), [""])
sketch17.MapMode = "FlatFace"
sketch17.AttachmentOffset = App.Placement(App.Vector(0, 0, 77.5), App.Rotation())
add_polygon(sketch17, [(-25, -38), (25, -38), (25, 3), (19, 8), (-19, 8), (-25, 3)])  # lines 0-5
sketch17.addConstraint(Sketcher.Constraint("Horizontal", 0))
sketch17.addConstraint(Sketcher.Constraint("Vertical", 1))
sketch17.addConstraint(Sketcher.Constraint("Horizontal", 3))
sketch17.addConstraint(Sketcher.Constraint("Vertical", 5))
sketch17.addConstraint(Sketcher.Constraint("Symmetric", 1, 2, 4, 2, -2))
sketch17.addConstraint(Sketcher.Constraint("Perpendicular", 2, 4))
sketch17.addConstraint(Sketcher.Constraint("Equal", 2, 4))
sketch17.addConstraint(Sketcher.Constraint("DistanceX", 0, 1, 0, 2, 49.1))
sketch17.addConstraint(Sketcher.Constraint("DistanceY", -1, 1, 2, 2, 8.0))
sketch17.addConstraint(Sketcher.Constraint("DistanceX", 3, 2, 3, 1, 38.74))
sketch17.addConstraint(Sketcher.Constraint("DistanceY", 1, 1, 1, 2, 40.92))
pad8 = body.newObject("PartDesign::Pad", "Pad007")
pad8.Profile = sketch17
pad8.Length = 8

# Sketch on XZ plane
sketch18 = body.newObject("Sketcher::SketchObject", "Sketch017")
sketch18.AttachmentSupport = (doc.getObject("XZ_Plane"), [""])
sketch18.MapMode = "FlatFace"
sketch18.AttachmentOffset = App.Placement(App.Vector(0, 0, 16.437), App.Rotation())
sketch18.addGeometry(Part.Circle(App.Vector(28.2, 17.5, 0), App.Vector(0, 0, 1), 2.8), False)
sketch18.addConstraint(Sketcher.Constraint("Diameter", 0, 5.563))
sketch18.addConstraint(Sketcher.Constraint("DistanceX", -1, 1, 0, 3, 28.25))
sketch18.addConstraint(Sketcher.Constraint("DistanceY", -1, 1, 0, 3, 17.525))
pocket10 = body.newObject("PartDesign::Pocket", "Pocket009")
pocket10.Profile = sketch18
pocket10.Length = 4.064
pocket10.TaperAngle = -8

# Sketch on XZ plane
sketch19 = body.newObject("Sketcher::SketchObject", "Sketch018")
sketch19.AttachmentSupport = (doc.getObject("XZ_Plane"), [""])
sketch19.MapMode = "FlatFace"
sketch19.AttachmentOffset = App.Placement(App.Vector(0, 0, 12.373), App.Rotation())
sketch19.addGeometry(Part.Circle(App.Vector(28.2, 17.5, 0), App.Vector(0, 0, 1), 2.2), False)
sketch19.addConstraint(Sketcher.Constraint("DistanceX", -1, 1, 0, 3, 28.25))
sketch19.addConstraint(Sketcher.Constraint("Diameter", 0, 4.420684))
sketch19.addConstraint(Sketcher.Constraint("DistanceY", -1, 1, 0, 3, 17.525))
pocket11 = body.newObject("PartDesign::Pocket", "Pocket010")
pocket11.Profile = sketch19
pocket11.Length = 0.381
doc.recompute()

mirrored3 = body.newObject("PartDesign::Mirrored", "Mirrored002")
mirrored3.Originals = [pocket10, pocket11]
mirrored3.MirrorPlane = (doc.getObject("XZ_Plane"), [""])
body.Tip = mirrored3

doc.recompute()
